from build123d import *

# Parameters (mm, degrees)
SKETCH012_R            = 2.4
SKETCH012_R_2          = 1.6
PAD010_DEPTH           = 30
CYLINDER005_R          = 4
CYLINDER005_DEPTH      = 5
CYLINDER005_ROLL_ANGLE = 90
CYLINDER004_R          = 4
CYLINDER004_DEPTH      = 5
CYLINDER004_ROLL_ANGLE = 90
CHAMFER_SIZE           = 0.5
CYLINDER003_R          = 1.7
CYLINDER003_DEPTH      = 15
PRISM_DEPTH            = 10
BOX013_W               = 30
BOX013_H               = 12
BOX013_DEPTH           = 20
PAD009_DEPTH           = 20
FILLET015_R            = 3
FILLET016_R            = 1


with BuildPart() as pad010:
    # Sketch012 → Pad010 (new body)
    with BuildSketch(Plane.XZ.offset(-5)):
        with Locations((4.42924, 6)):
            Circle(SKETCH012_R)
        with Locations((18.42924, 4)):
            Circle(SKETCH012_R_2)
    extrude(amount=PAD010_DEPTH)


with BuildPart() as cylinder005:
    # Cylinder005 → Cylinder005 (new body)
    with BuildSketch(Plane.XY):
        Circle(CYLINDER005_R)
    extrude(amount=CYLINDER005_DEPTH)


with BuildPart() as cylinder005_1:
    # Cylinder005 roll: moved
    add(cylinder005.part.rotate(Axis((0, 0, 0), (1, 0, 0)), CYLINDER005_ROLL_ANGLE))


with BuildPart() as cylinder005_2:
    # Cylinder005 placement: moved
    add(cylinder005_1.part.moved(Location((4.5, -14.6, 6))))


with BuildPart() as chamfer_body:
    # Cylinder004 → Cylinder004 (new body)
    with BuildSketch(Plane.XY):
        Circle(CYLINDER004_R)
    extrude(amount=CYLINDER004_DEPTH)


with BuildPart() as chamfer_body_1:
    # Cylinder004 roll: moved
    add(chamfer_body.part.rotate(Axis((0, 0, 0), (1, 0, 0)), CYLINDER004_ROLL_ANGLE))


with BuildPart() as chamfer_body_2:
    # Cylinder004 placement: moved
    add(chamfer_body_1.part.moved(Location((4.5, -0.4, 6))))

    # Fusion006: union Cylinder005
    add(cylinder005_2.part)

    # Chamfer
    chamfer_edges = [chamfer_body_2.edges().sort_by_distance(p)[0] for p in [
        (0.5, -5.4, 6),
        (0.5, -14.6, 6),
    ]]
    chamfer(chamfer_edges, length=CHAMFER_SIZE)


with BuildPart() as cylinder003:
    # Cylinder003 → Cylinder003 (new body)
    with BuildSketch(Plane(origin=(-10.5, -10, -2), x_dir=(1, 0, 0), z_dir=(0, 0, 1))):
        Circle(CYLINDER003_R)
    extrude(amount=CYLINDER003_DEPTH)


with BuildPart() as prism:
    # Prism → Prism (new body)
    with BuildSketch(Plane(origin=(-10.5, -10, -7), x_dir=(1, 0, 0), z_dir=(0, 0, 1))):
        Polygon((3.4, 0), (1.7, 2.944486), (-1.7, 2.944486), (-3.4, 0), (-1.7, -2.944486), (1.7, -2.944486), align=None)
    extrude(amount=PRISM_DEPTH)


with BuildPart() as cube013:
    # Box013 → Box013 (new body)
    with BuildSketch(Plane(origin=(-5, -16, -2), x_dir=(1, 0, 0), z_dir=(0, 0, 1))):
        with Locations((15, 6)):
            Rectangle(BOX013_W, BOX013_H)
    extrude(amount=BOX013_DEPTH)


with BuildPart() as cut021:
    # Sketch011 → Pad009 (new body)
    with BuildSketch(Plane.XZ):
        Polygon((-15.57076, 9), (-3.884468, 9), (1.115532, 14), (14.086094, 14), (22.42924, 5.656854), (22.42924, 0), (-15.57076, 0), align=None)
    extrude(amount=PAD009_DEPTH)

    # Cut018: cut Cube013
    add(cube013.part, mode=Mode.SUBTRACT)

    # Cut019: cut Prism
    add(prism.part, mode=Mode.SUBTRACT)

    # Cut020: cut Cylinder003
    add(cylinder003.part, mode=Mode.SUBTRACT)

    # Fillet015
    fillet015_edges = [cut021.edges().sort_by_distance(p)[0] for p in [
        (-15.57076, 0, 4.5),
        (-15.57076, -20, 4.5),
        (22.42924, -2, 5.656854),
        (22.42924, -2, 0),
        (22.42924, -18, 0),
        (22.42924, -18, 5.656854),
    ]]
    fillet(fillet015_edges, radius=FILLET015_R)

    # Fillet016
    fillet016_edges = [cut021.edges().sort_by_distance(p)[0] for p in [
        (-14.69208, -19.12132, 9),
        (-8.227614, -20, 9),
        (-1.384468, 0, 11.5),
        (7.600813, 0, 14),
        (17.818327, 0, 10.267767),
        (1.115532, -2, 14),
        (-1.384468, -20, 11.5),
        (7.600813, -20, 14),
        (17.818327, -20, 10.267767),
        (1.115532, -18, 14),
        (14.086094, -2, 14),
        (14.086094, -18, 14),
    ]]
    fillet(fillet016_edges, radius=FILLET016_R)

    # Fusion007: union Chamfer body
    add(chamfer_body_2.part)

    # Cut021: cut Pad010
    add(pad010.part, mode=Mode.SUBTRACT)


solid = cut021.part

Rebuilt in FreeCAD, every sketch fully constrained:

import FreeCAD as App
import Part
import Sketcher

V = App.Vector
Q = App.Units.Quantity


def edges_at(feature, points):
    """Names of the edges that pass closest to the given points."""
    edges = feature.Shape.Edges
    near = lambda p: min(range(len(edges)), key=lambda i: edges[i].distToShape(Part.Vertex(*p))[0])
    return sorted({f"Edge{near(p) + 1}" for p in points})


def add_polygon(sketch, points):
    """Adds a closed chain of lines whose ends are joined by coincident constraints."""
    first, n = sketch.GeometryCount, len(points)
    for a, b in zip(points, points[1:] + points[:1]):
        sketch.addGeometry(Part.LineSegment(App.Vector(*a, 0), App.Vector(*b, 0)), False)
    for i in range(n):
        sketch.addConstraint(Sketcher.Constraint("Coincident", first + i, 2, first + (i + 1) % n, 1))

doc = App.newDocument("Part")
params = doc.addObject("Spreadsheet::Sheet", "Params")
for row, (alias, value) in enumerate([
    ("sketch1_diameter", "4.8 mm"),
    ("sketch1_diameter2", "3.2 mm"),
    ("pad1_length", "30 mm"),
    ("sketch2_diameter", "8 mm"),
    ("pad2_length", "5 mm"),
    ("sketch3_diameter", "8 mm"),
    ("pad3_length", "5 mm"),
    ("chamfer_size", "0.5 mm"),
    ("sketch4_diameter", "3.4 mm"),
    ("pad4_length", "15 mm"),
    ("sketch5_width", "3.4 mm"),
    ("sketch5_length", "3.4 mm"),
    ("pad5_length", "10 mm"),
    ("sketch6_width", "30 mm"),
    ("sketch6_height", "12 mm"),
    ("pad6_length", "20 mm"),
    ("sketch7_width", "38 mm"),
    ("sketch7_height", "9 mm"),
    ("pad7_length", "20 mm"),
    ("fillet_radius", "3 mm"),
    ("fillet2_radius", "1 mm"),
], start=1):
    params.set(f"A{row}", alias)
    params.set(f"B{row}", "=" + value)
    params.setAlias(f"B{row}", alias)

body = doc.addObject("PartDesign::Body", "Body")
body.AllowCompound = True

sketch1 = doc.addObject("Sketcher::SketchObject", "Sketch")
body.addObject(sketch1)
sketch1.AttachmentSupport = (doc.XZ_Plane, [""])
sketch1.MapMode = "FlatFace"
sketch1.AttachmentOffset = App.Placement(V(0, 0, -5), App.Rotation())
sketch1.addGeometry([
    Part.Circle(V(4.42924, 6, 0), V(0, 0, 1), 2.4),
    Part.Circle(V(18.42924, 4, 0), V(0, 0, 1), 1.6),
], False)
sketch1.addConstraint([
    Sketcher.Constraint("Diameter", 0, 4.8),
    Sketcher.Constraint("Diameter", 1, 3.2),
    Sketcher.Constraint("DistanceY", -1, 1, 0, 3, 6.0),
    Sketcher.Constraint("DistanceY", -1, 1, 1, 3, 4.0),
    Sketcher.Constraint("DistanceX", 0, 3, 1, 3, 14.0),
    Sketcher.Constraint("DistanceX", -1, 1, 0, 3, 4.42924),
])
sketch1.setExpression("Constraints[0]", "Params.sketch1_diameter")
sketch1.setExpression("Constraints[1]", "Params.sketch1_diameter2")
pad1 = doc.addObject("PartDesign::Pad", "Pad")
body.addObject(pad1)
pad1.Profile = sketch1
pad1.setExpression("Length", "Params.pad1_length")
body2 = doc.addObject("PartDesign::Body", "Body001")

sketch2 = doc.addObject("Sketcher::SketchObject", "Sketch001")
body2.addObject(sketch2)
sketch2.AttachmentSupport = (doc.getObject("XY_Plane001"), [""])
sketch2.MapMode = "FlatFace"
sketch2.addGeometry(Part.Circle(V(0, 0, 0), V(0, 0, 1), 4), False)
sketch2.addConstraint([
    Sketcher.Constraint("Coincident", 0, 3, -1, 1),
    Sketcher.Constraint("Diameter", 0, 8.0),
])
sketch2.setExpression("Constraints[1]", "Params.sketch2_diameter")
pad2 = doc.addObject("PartDesign::Pad", "Pad001")
body2.addObject(pad2)
pad2.Profile = sketch2
pad2.setExpression("Length", "Params.pad2_length")
body3 = doc.addObject("PartDesign::Body", "Body002")
doc.recompute()

body2.Placement = App.Placement(V(0, 0, 0), App.Rotation(V(1, 0, 0), 90))
boolean = doc.addObject("PartDesign::Boolean", "Boolean")
body3.addObject(boolean)
boolean.Type = "Fuse"
boolean.addObjects([body2])
body4 = doc.addObject("PartDesign::Body", "Body003")
doc.recompute()

body3.Placement = App.Placement(V(4.5, -14.6, 6), App.Rotation(V(0, 0, 1), 0))
boolean2 = doc.addObject("PartDesign::Boolean", "Boolean001")
body4.addObject(boolean2)
boolean2.Type = "Fuse"
boolean2.addObjects([body3])
body5 = doc.addObject("PartDesign::Body", "Body004")

sketch3 = doc.addObject("Sketcher::SketchObject", "Sketch002")
body5.addObject(sketch3)
sketch3.AttachmentSupport = (doc.getObject("XY_Plane004"), [""])
sketch3.MapMode = "FlatFace"
sketch3.addGeometry(Part.Circle(V(0, 0, 0), V(0, 0, 1), 4), False)
sketch3.addConstraint([
    Sketcher.Constraint("Coincident", 0, 3, -1, 1),
    Sketcher.Constraint("Diameter", 0, 8.0),
])
sketch3.setExpression("Constraints[1]", "Params.sketch3_diameter")
pad3 = doc.addObject("PartDesign::Pad", "Pad002")
body5.addObject(pad3)
pad3.Profile = sketch3
pad3.setExpression("Length", "Params.pad3_length")
body6 = doc.addObject("PartDesign::Body", "Body005")
doc.recompute()

body5.Placement = App.Placement(V(0, 0, 0), App.Rotation(V(1, 0, 0), 90))
boolean3 = doc.addObject("PartDesign::Boolean", "Boolean002")
body6.addObject(boolean3)
boolean3.Type = "Fuse"
boolean3.addObjects([body5])
body7 = doc.addObject("PartDesign::Body", "Body006")
body7.AllowCompound = True
doc.recompute()

body6.Placement = App.Placement(V(4.5, -0.4, 6), App.Rotation(V(0, 0, 1), 0))
boolean4 = doc.addObject("PartDesign::Boolean", "Boolean003")
body7.addObject(boolean4)
boolean4.Type = "Fuse"
boolean4.addObjects([body6])
doc.recompute()

boolean5 = doc.addObject("PartDesign::Boolean", "Boolean004")
body7.addObject(boolean5)
boolean5.Type = "Fuse"
boolean5.addObjects([body4])
doc.recompute()

chamfer = doc.addObject("PartDesign::Chamfer", "Chamfer")
body7.addObject(chamfer)
chamfer.Base = (boolean5, edges_at(boolean5, [(0.5, -5.4, 6), (0.5, -14.6, 6)]))
chamfer.setExpression("Size", "Params.chamfer_size")
body8 = doc.addObject("PartDesign::Body", "Body007")

sketch4 = doc.addObject("Sketcher::SketchObject", "Sketch003")
body8.addObject(sketch4)
sketch4.AttachmentSupport = (doc.getObject("XY_Plane007"), [""])
sketch4.MapMode = "FlatFace"
sketch4.AttachmentOffset = App.Placement(V(0, 0, -2), App.Rotation())
sketch4.addGeometry(Part.Circle(V(-10.5, -10, 0), V(0, 0, 1), 1.7), False)
sketch4.addConstraint([
    Sketcher.Constraint("Diameter", 0, 3.4),
    Sketcher.Constraint("DistanceY", 0, 3, -1, 1, 10.0),
    Sketcher.Constraint("DistanceX", 0, 3, -1, 1, 10.5),
])
sketch4.setExpression("Constraints[0]", "Params.sketch4_diameter")
pad4 = doc.addObject("PartDesign::Pad", "Pad003")
body8.addObject(pad4)
pad4.Profile = sketch4
pad4.setExpression("Length", "Params.pad4_length")
body9 = doc.addObject("PartDesign::Body", "Body008")

sketch5 = doc.addObject("Sketcher::SketchObject", "Sketch004")
body9.addObject(sketch5)
sketch5.AttachmentSupport = (doc.getObject("XY_Plane008"), [""])
sketch5.MapMode = "FlatFace"
sketch5.AttachmentOffset = App.Placement(V(0, 0, -7), App.Rotation())
add_polygon(sketch5, [(-7.1, -10), (-8.8, -7.055514), (-12.2, -7.055514), (-13.9, -10), (-12.2, -12.944486), (-8.8, -12.944486)])
sketch5.addConstraint([
    Sketcher.Constraint("Horizontal", 1),
    Sketcher.Constraint("Horizontal", 4),
    Sketcher.Constraint("Parallel", 0, 3),
    Sketcher.Constraint("Parallel", 2, 5),
    Sketcher.Constraint("Horizontal", 2, 2, 5, 2),
    Sketcher.Constraint("Vertical", 1, 2, 3, 2),
    Sketcher.Constraint("Vertical", 0, 2, 4, 2),
    Sketcher.Constraint("Angle", 0, Q("120.000003 deg")),
    Sketcher.Constraint("DistanceX", 1, 2, 1, 1, 3.4),
    Sketcher.Constraint("DistanceY", 2, 2, -1, 1, 10.0),
    Sketcher.Constraint("Distance", 0, 3.4),
    Sketcher.Constraint("DistanceX", 0, 2, -1, 1, 8.8),
])
sketch5.setExpression("Constraints[14]", "Params.sketch5_width")
sketch5.setExpression("Constraints[16]", "Params.sketch5_length")
pad5 = doc.addObject("PartDesign::Pad", "Pad004")
body9.addObject(pad5)
pad5.Profile = sketch5
pad5.setExpression("Length", "Params.pad5_length")
body10 = doc.addObject("PartDesign::Body", "Body009")

sketch6 = doc.addObject("Sketcher::SketchObject", "Sketch005")
body10.addObject(sketch6)
sketch6.AttachmentSupport = (doc.getObject("XY_Plane009"), [""])
sketch6.MapMode = "FlatFace"
sketch6.AttachmentOffset = App.Placement(V(0, 0, -2), App.Rotation())
add_polygon(sketch6, [(-5, -4), (-5, -16), (25, -16), (25, -4)])
sketch6.addConstraint([
    Sketcher.Constraint("Vertical", 0),
    Sketcher.Constraint("Horizontal", 1),
    Sketcher.Constraint("Vertical", 2),
    Sketcher.Constraint("Horizontal", 3),
    Sketcher.Constraint("DistanceX", 1, 1, 1, 2, 30.0),
    Sketcher.Constraint("DistanceY", 0, 2, 0, 1, 12.0),
    Sketcher.Constraint("DistanceX", 0, 2, -1, 1, 5.0),
    Sketcher.Constraint("DistanceY", 0, 2, -1, 1, 16.0),
])
sketch6.setExpression("Constraints[8]", "Params.sketch6_width")
sketch6.setExpression("Constraints[9]", "Params.sketch6_height")
pad6 = doc.addObject("PartDesign::Pad", "Pad005")
body10.addObject(pad6)
pad6.Profile = sketch6
pad6.setExpression("Length", "Params.pad6_length")
body11 = doc.addObject("PartDesign::Body", "Body010")

sketch7 = doc.addObject("Sketcher::SketchObject", "Sketch006")
body11.addObject(sketch7)
sketch7.AttachmentSupport = (doc.getObject("XZ_Plane010"), [""])
sketch7.MapMode = "FlatFace"
add_polygon(sketch7, [(-3.884468, 9), (-15.57076, 9), (-15.57076, 0), (22.42924, 0), (22.42924, 5.656854), (14.086094, 14), (1.115532, 14)])
sketch7.addConstraint([
    Sketcher.Constraint("Horizontal", 0),
    Sketcher.Constraint("Vertical", 1),
    Sketcher.Constraint("Horizontal", 2),
    Sketcher.Constraint("Vertical", 3),
    Sketcher.Constraint("Horizontal", 5),
    Sketcher.Constraint("PointOnObject", 1, 2, -1),
    Sketcher.Constraint("Perpendicular", 4, 6),
    Sketcher.Constraint("DistanceX", 2, 1, 2, 2, 38.0),
    Sketcher.Constraint("DistanceY", 1, 2, 1, 1, 9.0),
    Sketcher.Constraint("Angle", 4, Q("135 deg")),
    Sketcher.Constraint("DistanceY", -1, 1, 4, 2, 14.0),
    Sketcher.Constraint("DistanceX", 5, 2, 5, 1, 12.970562),
    Sketcher.Constraint("Distance", 4, 11.79899),
    Sketcher.Constraint("DistanceX", 0, 2, -1, 1, 15.57076),
])
sketch7.setExpression("Constraints[14]", "Params.sketch7_width")
sketch7.setExpression("Constraints[15]", "Params.sketch7_height")
pad7 = doc.addObject("PartDesign::Pad", "Pad006")
body11.addObject(pad7)
pad7.Profile = sketch7
pad7.setExpression("Length", "Params.pad7_length")
doc.recompute()

boolean6 = doc.addObject("PartDesign::Boolean", "Boolean005")
body11.addObject(boolean6)
boolean6.Type = "Cut"
boolean6.addObjects([body10])
doc.recompute()

boolean7 = doc.addObject("PartDesign::Boolean", "Boolean006")
body11.addObject(boolean7)
boolean7.Type = "Cut"
boolean7.addObjects([body9])
doc.recompute()

boolean8 = doc.addObject("PartDesign::Boolean", "Boolean007")
body11.addObject(boolean8)
boolean8.Type = "Cut"
boolean8.addObjects([body8])
doc.recompute()

fillet = doc.addObject("PartDesign::Fillet", "Fillet")
body11.addObject(fillet)
fillet.Base = (boolean8, edges_at(boolean8, [
    (-15.571, 0, 4.5),
    (-15.571, -20, 4.5),
    (22.429, -2, 5.657),
    (22.429, -2, 0),
    (22.429, -18, 0),
    (22.429, -18, 5.657),
]))
fillet.setExpression("Radius", "Params.fillet_radius")
doc.recompute()

fillet2 = doc.addObject("PartDesign::Fillet", "Fillet001")
body11.addObject(fillet2)
fillet2.Base = (fillet, edges_at(fillet, [
    (-14.692, -19.121, 9),
    (-8.228, -20, 9),
    (-1.384, 0, 11.5),
    (7.601, 0, 14),
    (17.818, 0, 10.268),
    (1.116, -2, 14),
    (-1.384, -20, 11.5),
    (7.601, -20, 14),
    (17.818, -20, 10.268),
    (1.116, -18, 14),
    (14.086, -2, 14),
    (14.086, -18, 14),
]))
fillet2.setExpression("Radius", "Params.fillet2_radius")
doc.recompute()

boolean9 = doc.addObject("PartDesign::Boolean", "Boolean008")
body11.addObject(boolean9)
boolean9.Type = "Fuse"
boolean9.addObjects([body7])
doc.recompute()

boolean10 = doc.addObject("PartDesign::Boolean", "Boolean009")
body11.addObject(boolean10)
boolean10.Type = "Cut"
boolean10.addObjects([body])

doc.recompute()
